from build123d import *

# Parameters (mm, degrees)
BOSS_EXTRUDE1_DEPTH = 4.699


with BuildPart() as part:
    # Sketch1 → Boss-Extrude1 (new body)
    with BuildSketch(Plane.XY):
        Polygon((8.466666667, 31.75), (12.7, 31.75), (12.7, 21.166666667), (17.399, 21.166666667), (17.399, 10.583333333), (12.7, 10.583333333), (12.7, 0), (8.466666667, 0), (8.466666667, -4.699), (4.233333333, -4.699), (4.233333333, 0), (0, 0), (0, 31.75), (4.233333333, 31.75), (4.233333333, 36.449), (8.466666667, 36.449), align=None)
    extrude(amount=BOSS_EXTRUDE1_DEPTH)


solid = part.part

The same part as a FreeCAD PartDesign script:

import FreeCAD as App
import Part
import Sketcher

V = App.Vector
Q = App.Units.Quantity


def add_polygon(sketch, points):
    """Adds a closed chain of lines whose ends are joined by coincident constraints."""
    first, n = sketch.GeometryCount, len(points)
    for a, b in zip(points, points[1:] + points[:1]):
        sketch.addGeometry(Part.LineSegment(App.Vector(*a, 0), App.Vector(*b, 0)), False)
    for i in range(n):
        sketch.addConstraint(Sketcher.Constraint("Coincident", first + i, 2, first + (i + 1) % n, 1))

doc = App.newDocument("Part")
body = doc.addObject("PartDesign::Body", "Body")

sketch1 = doc.addObject("Sketcher::SketchObject", "Sketch")
body.addObject(sketch1)
sketch1.AttachmentSupport = (doc.XY_Plane, [""])
sketch1.MapMode = "FlatFace"
add_polygon(sketch1, [(12.7, 31.8), (8.5, 31.8), (8.5, 36.4), (4.2, 36.4), (4.2, 31.8), (0, 31.8), (0, 0), (4.2, 0), (4.2, -4.7), (8.5, -4.7), (8.5, 0), (12.7, 0), (12.7, 10.6), (17.4, 10.6), (17.4, 21.2), (12.7, 21.2)])
sketch1.addConstraint([
    Sketcher.Constraint("Horizontal", 0),
    Sketcher.Constraint("Vertical", 1),
    Sketcher.Constraint("Horizontal", 2),
    Sketcher.Constraint("Vertical", 3),
    Sketcher.Constraint("Horizontal", 4),
    Sketcher.Constraint("Vertical", 5),
    Sketcher.Constraint("Horizontal", 6),
    Sketcher.Constraint("Vertical", 7),
    Sketcher.Constraint("Horizontal", 8),
    Sketcher.Constraint("Vertical", 9),
    Sketcher.Constraint("Horizontal", 10),
    Sketcher.Constraint("Vertical", 11),
    Sketcher.Constraint("Horizontal", 12),
    Sketcher.Constraint("Vertical", 13),
    Sketcher.Constraint("Horizontal", 14),
    Sketcher.Constraint("Vertical", 15),
    Sketcher.Constraint("Coincident", 5, 2, -1, 1),
    Sketcher.Constraint("PointOnObject", 9, 2, -1),
    Sketcher.Constraint("Horizontal", 0, 2, 3, 2),
    Sketcher.Constraint("Vertical", 3, 2, 6, 2),
    Sketcher.Constraint("Vertical", 1, 2, 8, 2),
    Sketcher.Constraint("Vertical", 11, 2, 14, 2),
    Sketcher.Constraint("Equal", 0, 2),
    Sketcher.Constraint("Equal", 2, 4),
    Sketcher.Constraint("Equal", 14, 1),
    Sketcher.Constraint("Equal", 3, 7),
    Sketcher.Constraint("Equal", 11, 13),
    Sketcher.Constraint("Equal", 13, 15),
    Sketcher.Constraint("DistanceY", 5, 2, 5, 1, Q("1.25 in")),
    Sketcher.Constraint("DistanceX", -1, 1, 10, 2, Q("0.5 in")),
    Sketcher.Constraint("DistanceX", 12, 1, 12, 2, Q("0.185 in")),
])
pad1 = doc.addObject("PartDesign::Pad", "Pad")
body.addObject(pad1)
pad1.Profile = sketch1
pad1.Length = Q("0.185 in")

doc.recompute()
